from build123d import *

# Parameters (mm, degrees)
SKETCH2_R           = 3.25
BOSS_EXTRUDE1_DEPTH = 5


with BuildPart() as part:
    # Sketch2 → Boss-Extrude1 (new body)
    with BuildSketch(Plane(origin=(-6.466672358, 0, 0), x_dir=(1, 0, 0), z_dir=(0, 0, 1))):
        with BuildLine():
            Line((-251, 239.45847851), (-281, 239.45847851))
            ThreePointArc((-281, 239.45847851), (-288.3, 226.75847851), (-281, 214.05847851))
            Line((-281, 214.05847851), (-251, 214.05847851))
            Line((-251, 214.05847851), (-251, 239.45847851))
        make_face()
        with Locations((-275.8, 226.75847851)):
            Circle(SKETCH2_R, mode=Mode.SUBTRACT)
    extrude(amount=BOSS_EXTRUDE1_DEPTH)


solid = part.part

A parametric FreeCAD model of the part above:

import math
import FreeCAD as App
import Part
import Sketcher

doc = App.newDocument("Part")
body = doc.addObject("PartDesign::Body", "Body")

sketch1 = body.newObject("Sketcher::SketchObject", "Sketch")
sketch1.AttachmentSupport = (doc.getObject("XY_Plane"), [""])
sketch1.MapMode = "FlatFace"
sketch1.addGeometry([
    Part.LineSegment(App.Vector(-257.5, 239.5, 0), App.Vector(-287.5, 239.5, 0)),
    Part.ArcOfCircle(Part.Circle(App.Vector(-280.1, 226.8, 0), App.Vector(0, 0, 1), 14.7), math.radians(120), math.radians(240)),
    Part.LineSegment(App.Vector(-287.5, 214.1, 0), App.Vector(-257.5, 214.1, 0)),
    Part.LineSegment(App.Vector(-257.5, 214.1, 0), App.Vector(-257.5, 239.5, 0)),
    Part.Circle(App.Vector(-282.3, 226.8, 0), App.Vector(0, 0, 1), 3.2),
], False)
sketch1.addConstraint([
    Sketcher.Constraint("Coincident", 0, 2, 1, 1),
    Sketcher.Constraint("Coincident", 1, 2, 2, 1),
    Sketcher.Constraint("Coincident", 2, 2, 3, 1),
    Sketcher.Constraint("Coincident", 3, 2, 0, 1),
    Sketcher.Constraint("Horizontal", 0),
    Sketcher.Constraint("Horizontal", 2),
    Sketcher.Constraint("Vertical", 3),
    Sketcher.Constraint("Horizontal", 1, 3, 4, 3),
    Sketcher.Constraint("Vertical", 0, 2, 1, 2),
    Sketcher.Constraint("Diameter", 4, 6.5),
    Sketcher.Constraint("DistanceX", 0, 2, 0, 1, 30.0),
    Sketcher.Constraint("DistanceY", 3, 1, 3, 2, 25.4),
    Sketcher.Constraint("DistanceX", 0, 2, 4, 3, 5.2),
    Sketcher.Constraint("Radius", 1, 14.69726),
    Sketcher.Constraint("DistanceY", -1, 1, 1, 3, 226.758479),
    Sketcher.Constraint("DistanceX", 1, 3, -1, 1, 280.069412),
])
pad1 = body.newObject("PartDesign::Pad", "Pad")
pad1.Profile = sketch1
pad1.Length = 5

doc.recompute()
